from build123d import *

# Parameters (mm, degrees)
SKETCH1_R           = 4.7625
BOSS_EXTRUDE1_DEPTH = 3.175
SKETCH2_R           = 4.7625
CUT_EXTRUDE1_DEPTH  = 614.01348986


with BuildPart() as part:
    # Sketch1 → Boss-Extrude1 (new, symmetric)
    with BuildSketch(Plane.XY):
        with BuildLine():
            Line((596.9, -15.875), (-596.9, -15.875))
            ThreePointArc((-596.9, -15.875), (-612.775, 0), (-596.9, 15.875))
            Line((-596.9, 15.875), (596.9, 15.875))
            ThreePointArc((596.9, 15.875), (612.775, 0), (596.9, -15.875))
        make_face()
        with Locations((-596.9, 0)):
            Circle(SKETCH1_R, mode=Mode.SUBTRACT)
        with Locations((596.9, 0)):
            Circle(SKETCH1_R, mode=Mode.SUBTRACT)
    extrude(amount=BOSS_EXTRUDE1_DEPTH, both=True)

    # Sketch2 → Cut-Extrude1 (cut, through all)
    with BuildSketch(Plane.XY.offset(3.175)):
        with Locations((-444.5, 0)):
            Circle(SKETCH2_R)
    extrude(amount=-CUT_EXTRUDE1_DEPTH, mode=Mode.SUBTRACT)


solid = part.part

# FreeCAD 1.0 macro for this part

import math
import FreeCAD as App
import Part
import Sketcher

V = App.Vector
Q = App.Units.Quantity

doc = App.newDocument("Part")
body = doc.addObject("PartDesign::Body", "Body")

# Sketch on XY plane
sketch1 = doc.addObject("Sketcher::SketchObject", "Sketch")
body.addObject(sketch1)
sketch1.AttachmentSupport = (doc.XY_Plane, [""])
sketch1.MapMode = "FlatFace"
sketch1.addGeometry([
    Part.LineSegment(V(-596.9, -15.9, 0), V(596.9, -15.9, 0)),  # 0
    Part.ArcOfCircle(Part.Circle(V(596.9, 0, 0), V(0, 0, 1), 15.9), math.radians(-90), math.radians(90)),  # 1
    Part.LineSegment(V(596.9, 15.9, 0), V(-596.9, 15.9, 0)),  # 2
    Part.ArcOfCircle(Part.Circle(V(-596.9, 0, 0), V(0, 0, 1), 15.9), math.radians(90), math.radians(270)),  # 3
    Part.Circle(V(596.9, 0, 0), V(0, 0, 1), 4.8),  # 4
    Part.Circle(V(-596.9, 0, 0), V(0, 0, 1), 4.8),  # 5
], False)
sketch1.addConstraint([
    Sketcher.Constraint("Tangent", 0, 2, 1, 1),
    Sketcher.Constraint("Tangent", 1, 2, 2, 1),
    Sketcher.Constraint("Tangent", 2, 2, 3, 1),
    Sketcher.Constraint("Tangent", 3, 2, 0, 1),
    Sketcher.Constraint("Horizontal", 0),
    Sketcher.Constraint("Horizontal", 2),
    Sketcher.Constraint("Coincident", 4, 3, 1, 3),
    Sketcher.Constraint("Coincident", 5, 3, 3, 3),
    Sketcher.Constraint("Equal", 4, 5),
    Sketcher.Constraint("Symmetric", 1, 3, 3, 3, -1, 1),
    Sketcher.Constraint("DistanceX", 0, 1, 0, 2, Q("47 in")),
    Sketcher.Constraint("Diameter", 4, Q("0.375 in")),
    Sketcher.Constraint("Radius", 1, Q("0.625 in")),
])
pad1 = doc.addObject("PartDesign::Pad", "Pad")
body.addObject(pad1)
pad1.Profile = sketch1
pad1.Length = Q("0.25 in")
pad1.Midplane = True

# Sketch on XY plane
sketch2 = doc.addObject("Sketcher::SketchObject", "Sketch001")
body.addObject(sketch2)
sketch2.AttachmentSupport = (doc.XY_Plane, [""])
sketch2.MapMode = "FlatFace"
sketch2.AttachmentOffset = App.Placement(V(0, 0, 0.125 * 25.4), App.Rotation())
sketch2.addGeometry(Part.Circle(V(-444.5, 0, 0), V(0, 0, 1), 4.8), False)
sketch2.addConstraint([
    Sketcher.Constraint("PointOnObject", 0, 3, -1),
    Sketcher.Constraint("Diameter", 0, Q("0.375 in")),
    Sketcher.Constraint("DistanceX", 0, 3, -1, 1, Q("17.5 in")),
])
pocket1 = doc.addObject("PartDesign::Pocket", "Pocket")
body.addObject(pocket1)
pocket1.Profile = sketch2
pocket1.Type = "ThroughAll"

doc.recompute()
